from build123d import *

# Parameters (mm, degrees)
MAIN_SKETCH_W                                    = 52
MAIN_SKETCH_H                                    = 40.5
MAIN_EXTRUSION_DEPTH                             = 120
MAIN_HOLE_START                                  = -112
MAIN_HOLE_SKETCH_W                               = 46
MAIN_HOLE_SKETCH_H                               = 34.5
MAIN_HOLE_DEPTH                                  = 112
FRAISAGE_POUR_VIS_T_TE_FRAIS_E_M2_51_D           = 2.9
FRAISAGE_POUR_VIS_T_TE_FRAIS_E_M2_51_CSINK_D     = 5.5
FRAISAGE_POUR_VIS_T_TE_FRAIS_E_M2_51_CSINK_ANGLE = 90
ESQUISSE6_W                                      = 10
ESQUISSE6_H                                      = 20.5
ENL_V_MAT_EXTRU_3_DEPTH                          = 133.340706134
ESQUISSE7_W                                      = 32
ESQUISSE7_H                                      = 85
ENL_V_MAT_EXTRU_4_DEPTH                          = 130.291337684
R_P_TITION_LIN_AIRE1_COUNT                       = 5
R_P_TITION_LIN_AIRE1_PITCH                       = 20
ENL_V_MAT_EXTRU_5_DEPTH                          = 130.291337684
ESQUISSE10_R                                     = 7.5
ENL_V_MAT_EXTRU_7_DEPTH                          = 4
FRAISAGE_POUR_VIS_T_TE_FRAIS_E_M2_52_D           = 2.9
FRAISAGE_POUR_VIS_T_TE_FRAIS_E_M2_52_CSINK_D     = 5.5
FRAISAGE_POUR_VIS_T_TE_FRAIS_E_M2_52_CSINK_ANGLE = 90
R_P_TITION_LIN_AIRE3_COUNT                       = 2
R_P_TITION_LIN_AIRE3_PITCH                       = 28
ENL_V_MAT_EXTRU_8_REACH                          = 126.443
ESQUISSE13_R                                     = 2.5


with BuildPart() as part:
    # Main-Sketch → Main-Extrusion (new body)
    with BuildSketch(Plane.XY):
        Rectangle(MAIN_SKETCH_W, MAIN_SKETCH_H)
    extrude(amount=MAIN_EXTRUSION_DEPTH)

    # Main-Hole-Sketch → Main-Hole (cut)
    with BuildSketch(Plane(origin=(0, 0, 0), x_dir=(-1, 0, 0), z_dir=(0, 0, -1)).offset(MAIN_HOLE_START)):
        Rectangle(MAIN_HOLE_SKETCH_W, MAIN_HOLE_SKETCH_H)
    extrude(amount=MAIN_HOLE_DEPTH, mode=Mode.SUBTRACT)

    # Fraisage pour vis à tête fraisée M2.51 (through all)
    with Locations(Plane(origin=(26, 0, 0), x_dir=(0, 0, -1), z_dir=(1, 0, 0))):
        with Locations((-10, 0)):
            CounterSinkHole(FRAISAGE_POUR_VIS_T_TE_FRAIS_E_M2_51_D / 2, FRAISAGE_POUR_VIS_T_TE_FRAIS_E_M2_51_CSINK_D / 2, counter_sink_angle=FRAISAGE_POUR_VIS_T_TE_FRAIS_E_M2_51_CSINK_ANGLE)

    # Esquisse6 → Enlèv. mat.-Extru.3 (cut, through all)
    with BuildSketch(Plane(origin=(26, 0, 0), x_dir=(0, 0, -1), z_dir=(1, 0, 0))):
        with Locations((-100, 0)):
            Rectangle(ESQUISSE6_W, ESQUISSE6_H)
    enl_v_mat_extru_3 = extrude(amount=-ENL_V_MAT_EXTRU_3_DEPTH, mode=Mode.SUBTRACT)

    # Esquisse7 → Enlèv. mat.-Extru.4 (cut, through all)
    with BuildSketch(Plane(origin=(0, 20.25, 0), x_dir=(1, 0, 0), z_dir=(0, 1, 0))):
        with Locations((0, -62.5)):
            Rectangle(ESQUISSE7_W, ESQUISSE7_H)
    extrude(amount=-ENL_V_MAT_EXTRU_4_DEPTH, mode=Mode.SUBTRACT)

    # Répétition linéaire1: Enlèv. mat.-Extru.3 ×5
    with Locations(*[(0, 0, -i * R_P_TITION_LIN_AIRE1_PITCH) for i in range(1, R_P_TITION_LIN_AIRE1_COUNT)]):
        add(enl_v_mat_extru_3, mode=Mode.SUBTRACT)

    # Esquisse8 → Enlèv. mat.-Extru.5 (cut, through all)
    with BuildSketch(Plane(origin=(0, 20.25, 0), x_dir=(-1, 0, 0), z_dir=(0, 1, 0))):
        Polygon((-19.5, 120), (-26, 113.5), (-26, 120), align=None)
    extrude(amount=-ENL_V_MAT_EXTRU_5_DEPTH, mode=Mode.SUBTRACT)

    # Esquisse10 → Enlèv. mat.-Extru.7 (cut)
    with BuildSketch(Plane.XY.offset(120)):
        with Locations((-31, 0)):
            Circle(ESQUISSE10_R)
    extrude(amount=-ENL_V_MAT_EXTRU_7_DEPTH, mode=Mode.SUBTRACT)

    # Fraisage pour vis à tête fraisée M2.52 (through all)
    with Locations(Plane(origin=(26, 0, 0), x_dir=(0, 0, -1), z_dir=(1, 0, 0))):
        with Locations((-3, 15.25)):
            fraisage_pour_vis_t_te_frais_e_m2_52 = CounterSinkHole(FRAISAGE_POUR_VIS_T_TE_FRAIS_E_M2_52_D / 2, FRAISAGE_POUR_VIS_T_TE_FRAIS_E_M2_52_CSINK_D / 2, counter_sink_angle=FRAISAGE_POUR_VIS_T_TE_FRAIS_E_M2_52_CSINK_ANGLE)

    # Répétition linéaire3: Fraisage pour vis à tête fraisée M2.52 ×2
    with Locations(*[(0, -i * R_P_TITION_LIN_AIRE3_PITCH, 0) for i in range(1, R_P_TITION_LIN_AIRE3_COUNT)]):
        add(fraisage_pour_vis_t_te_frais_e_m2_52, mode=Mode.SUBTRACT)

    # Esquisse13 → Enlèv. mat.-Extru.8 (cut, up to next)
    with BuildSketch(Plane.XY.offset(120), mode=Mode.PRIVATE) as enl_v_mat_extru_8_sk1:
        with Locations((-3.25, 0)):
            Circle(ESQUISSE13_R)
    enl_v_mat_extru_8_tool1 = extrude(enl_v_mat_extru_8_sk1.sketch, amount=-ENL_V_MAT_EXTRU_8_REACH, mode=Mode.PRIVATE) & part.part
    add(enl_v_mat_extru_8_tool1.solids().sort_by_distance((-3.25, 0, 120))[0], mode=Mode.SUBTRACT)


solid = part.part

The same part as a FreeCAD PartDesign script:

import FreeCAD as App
import Part
import Sketcher

doc = App.newDocument("Part")
body = doc.addObject("PartDesign::Body", "Body")

# Sketch on XY plane
sketch1 = body.newObject("Sketcher::SketchObject", "Sketch")
sketch1.AttachmentSupport = (doc.getObject("XY_Plane"), [""])
sketch1.MapMode = "FlatFace"
sketch1.addGeometry([
    Part.LineSegment(App.Vector(-26, 20, 0), App.Vector(-26, -20, 0)),
    Part.LineSegment(App.Vector(-26, -20, 0), App.Vector(26, -20, 0)),
    Part.LineSegment(App.Vector(26, -20, 0), App.Vector(26, 20, 0)),
    Part.LineSegment(App.Vector(26, 20, 0), App.Vector(-26, 20, 0)),
], False)
sketch1.addConstraint([
    Sketcher.Constraint("Coincident", 0, 2, 1, 1),
    Sketcher.Constraint("Coincident", 1, 2, 2, 1),
    Sketcher.Constraint("Coincident", 2, 2, 3, 1),
    Sketcher.Constraint("Coincident", 3, 2, 0, 1),
    Sketcher.Constraint("Vertical", 0),
    Sketcher.Constraint("Horizontal", 1),
    Sketcher.Constraint("Vertical", 2),
    Sketcher.Constraint("Horizontal", 3),
    Sketcher.Constraint("Symmetric", 0, 2, 2, 2, -1, 1),
    Sketcher.Constraint("DistanceX", 1, 1, 1, 2, 52.0),
    Sketcher.Constraint("DistanceY", 0, 2, 0, 1, 40.5),
])
pad1 = body.newObject("PartDesign::Pad", "Pad")
pad1.Profile = sketch1
pad1.Length = 120

# Sketch on XY plane
sketch2 = body.newObject("Sketcher::SketchObject", "Sketch001")
sketch2.AttachmentSupport = (doc.getObject("XY_Plane"), [""])
sketch2.MapMode = "FlatFace"
sketch2.AttachmentOffset = App.Placement(App.Vector(0, 0, 112), App.Rotation())
sketch2.addGeometry([
    Part.LineSegment(App.Vector(23, 17, 0), App.Vector(23, -17, 0)),
    Part.LineSegment(App.Vector(23, -17, 0), App.Vector(-23, -17, 0)),
    Part.LineSegment(App.Vector(-23, -17, 0), App.Vector(-23, 17, 0)),
    Part.LineSegment(App.Vector(-23, 17, 0), App.Vector(23, 17, 0)),
], False)
sketch2.addConstraint([
    Sketcher.Constraint("Coincident", 0, 2, 1, 1),
    Sketcher.Constraint("Coincident", 1, 2, 2, 1),
    Sketcher.Constraint("Coincident", 2, 2, 3, 1),
    Sketcher.Constraint("Coincident", 3, 2, 0, 1),
    Sketcher.Constraint("Vertical", 0),
    Sketcher.Constraint("Horizontal", 1),
    Sketcher.Constraint("Vertical", 2),
    Sketcher.Constraint("Horizontal", 3),
    Sketcher.Constraint("Symmetric", 0, 2, 2, 2, -1, 1),
    Sketcher.Constraint("DistanceX", 1, 2, 1, 1, 46.0),
    Sketcher.Constraint("DistanceY", 0, 2, 0, 1, 34.5),
])
pocket1 = body.newObject("PartDesign::Pocket", "Pocket")
pocket1.Profile = sketch2
pocket1.Length = 112

# Sketch on YZ plane
sketch3 = body.newObject("Sketcher::SketchObject", "Sketch002")
sketch3.AttachmentSupport = (doc.getObject("YZ_Plane"), [""])
sketch3.MapMode = "FlatFace"
sketch3.AttachmentOffset = App.Placement(App.Vector(0, 0, 26), App.Rotation())
sketch3.addGeometry(Part.Circle(App.Vector(0, 10, 0), App.Vector(0, 0, 1), 1.4), False)
sketch3.addConstraint([
    Sketcher.Constraint("PointOnObject", 0, 3, -2),
    Sketcher.Constraint("Diameter", 0, 2.9),
    Sketcher.Constraint("DistanceY", -1, 1, 0, 3, 10.0),
])
doc.recompute()
hole = body.newObject("PartDesign::Hole", "Hole")
hole.Profile = sketch3
hole.ThreadType = "None"
hole.Diameter = 2.9
hole.DepthType = "ThroughAll"
hole.HoleCutType = "Countersink"
hole.HoleCutDiameter = 5.5
hole.HoleCutCountersinkAngle = 90

# Sketch on YZ plane
sketch4 = body.newObject("Sketcher::SketchObject", "Sketch003")
sketch4.AttachmentSupport = (doc.getObject("YZ_Plane"), [""])
sketch4.MapMode = "FlatFace"
sketch4.AttachmentOffset = App.Placement(App.Vector(0, 0, 26), App.Rotation())
sketch4.addGeometry([
    Part.LineSegment(App.Vector(10, 105, 0), App.Vector(-10, 105, 0)),
    Part.LineSegment(App.Vector(-10, 105, 0), App.Vector(-10, 95, 0)),
    Part.LineSegment(App.Vector(-10, 95, 0), App.Vector(10, 95, 0)),
    Part.LineSegment(App.Vector(10, 95, 0), App.Vector(10, 105, 0)),
], False)
sketch4.addConstraint([
    Sketcher.Constraint("Coincident", 0, 2, 1, 1),
    Sketcher.Constraint("Coincident", 1, 2, 2, 1),
    Sketcher.Constraint("Coincident", 2, 2, 3, 1),
    Sketcher.Constraint("Coincident", 3, 2, 0, 1),
    Sketcher.Constraint("Horizontal", 0),
    Sketcher.Constraint("Vertical", 1),
    Sketcher.Constraint("Horizontal", 2),
    Sketcher.Constraint("Vertical", 3),
    Sketcher.Constraint("DistanceY", 1, 2, 1, 1, 10.0),
    Sketcher.Constraint("DistanceX", 0, 2, 0, 1, 20.5),
    Sketcher.Constraint("DistanceY", -1, 1, 0, 2, 105.0),
    Sketcher.Constraint("DistanceX", 0, 2, -1, 1, 10.25),
])
pocket2 = body.newObject("PartDesign::Pocket", "Pocket001")
pocket2.Profile = sketch4
pocket2.Type = "ThroughAll"

# Sketch on XZ plane
sketch5 = body.newObject("Sketcher::SketchObject", "Sketch004")
sketch5.AttachmentSupport = (doc.getObject("XZ_Plane"), [""])
sketch5.MapMode = "FlatFace"
sketch5.AttachmentOffset = App.Placement(App.Vector(0, 0, -20.25), App.Rotation())
sketch5.addGeometry([
    Part.LineSegment(App.Vector(-16, 20, 0), App.Vector(-16, 105, 0)),
    Part.LineSegment(App.Vector(-16, 105, 0), App.Vector(16, 105, 0)),
    Part.LineSegment(App.Vector(16, 105, 0), App.Vector(16, 20, 0)),
    Part.LineSegment(App.Vector(16, 20, 0), App.Vector(-16, 20, 0)),
], False)
sketch5.addConstraint([
    Sketcher.Constraint("Coincident", 0, 2, 1, 1),
    Sketcher.Constraint("Coincident", 1, 2, 2, 1),
    Sketcher.Constraint("Coincident", 2, 2, 3, 1),
    Sketcher.Constraint("Coincident", 3, 2, 0, 1),
    Sketcher.Constraint("Vertical", 0),
    Sketcher.Constraint("Horizontal", 1),
    Sketcher.Constraint("Vertical", 2),
    Sketcher.Constraint("Horizontal", 3),
    Sketcher.Constraint("DistanceX", 1, 1, 1, 2, 32.0),
    Sketcher.Constraint("DistanceY", 0, 1, 0, 2, 85.0),
    Sketcher.Constraint("DistanceX", 0, 2, -1, 1, 16.0),
    Sketcher.Constraint("DistanceY", -1, 1, 0, 2, 105.0),
])
pocket3 = body.newObject("PartDesign::Pocket", "Pocket002")
pocket3.Profile = sketch5
pocket3.Type = "ThroughAll"
pocket3.Reversed = True
doc.recompute()

linearpattern = body.newObject("PartDesign::LinearPattern", "LinearPattern")
linearpattern.Originals = [pocket2]
linearpattern.Direction = (doc.getObject("Z_Axis"), [""])
linearpattern.Mode = "offset"
linearpattern.Offset = 20
linearpattern.Occurrences = 5
linearpattern.Reversed = True
body.Tip = linearpattern

# Sketch on XZ plane
sketch6 = body.newObject("Sketcher::SketchObject", "Sketch005")
sketch6.AttachmentSupport = (doc.getObject("XZ_Plane"), [""])
sketch6.MapMode = "FlatFace"
sketch6.AttachmentOffset = App.Placement(App.Vector(0, 0, -20.25), App.Rotation())
sketch6.addGeometry([
    Part.LineSegment(App.Vector(26, 114, 0), App.Vector(20, 120, 0)),
    Part.LineSegment(App.Vector(20, 120, 0), App.Vector(26, 120, 0)),
    Part.LineSegment(App.Vector(26, 120, 0), App.Vector(26, 114, 0)),
], False)
sketch6.addConstraint([
    Sketcher.Constraint("Coincident", 0, 2, 1, 1),
    Sketcher.Constraint("Coincident", 1, 2, 2, 1),
    Sketcher.Constraint("Coincident", 2, 2, 0, 1),
    Sketcher.Constraint("Horizontal", 1),
    Sketcher.Constraint("Vertical", 2),
    Sketcher.Constraint("Equal", 1, 2),
    Sketcher.Constraint("DistanceX", 1, 1, 1, 2, 6.5),
    Sketcher.Constraint("DistanceY", -1, 1, 0, 2, 120.0),
    Sketcher.Constraint("DistanceX", -1, 1, 1, 2, 26.0),
])
pocket4 = body.newObject("PartDesign::Pocket", "Pocket003")
pocket4.Profile = sketch6
pocket4.Type = "ThroughAll"
pocket4.Reversed = True

# Sketch on XY plane
sketch7 = body.newObject("Sketcher::SketchObject", "Sketch006")
sketch7.AttachmentSupport = (doc.getObject("XY_Plane"), [""])
sketch7.MapMode = "FlatFace"
sketch7.AttachmentOffset = App.Placement(App.Vector(0, 0, 120), App.Rotation())
sketch7.addGeometry(Part.Circle(App.Vector(-31, 0, 0), App.Vector(0, 0, 1), 8), False)
sketch7.addConstraint([
    Sketcher.Constraint("PointOnObject", 0, 3, -1),
    Sketcher.Constraint("Diameter", 0, 15.0),
    Sketcher.Constraint("DistanceX", 0, 3, -1, 1, 31.0),
])
pocket5 = body.newObject("PartDesign::Pocket", "Pocket004")
pocket5.Profile = sketch7
pocket5.Length = 4

# Sketch on YZ plane
sketch8 = body.newObject("Sketcher::SketchObject", "Sketch007")
sketch8.AttachmentSupport = (doc.getObject("YZ_Plane"), [""])
sketch8.MapMode = "FlatFace"
sketch8.AttachmentOffset = App.Placement(App.Vector(0, 0, 26), App.Rotation())
sketch8.addGeometry(Part.Circle(App.Vector(15.2, 3, 0), App.Vector(0, 0, 1), 1.4), False)
sketch8.addConstraint([
    Sketcher.Constraint("Diameter", 0, 2.9),
    Sketcher.Constraint("DistanceY", -1, 1, 0, 3, 3.0),
    Sketcher.Constraint("DistanceX", -1, 1, 0, 3, 15.25),
])
doc.recompute()
hole2 = body.newObject("PartDesign::Hole", "Hole001")
hole2.Profile = sketch8
hole2.ThreadType = "None"
hole2.Diameter = 2.9
hole2.DepthType = "ThroughAll"
hole2.HoleCutType = "Countersink"
hole2.HoleCutDiameter = 5.5
hole2.HoleCutCountersinkAngle = 90
doc.recompute()

linearpattern2 = body.newObject("PartDesign::LinearPattern", "LinearPattern001")
linearpattern2.Originals = [hole2]
linearpattern2.Direction = (doc.getObject("Y_Axis"), [""])
linearpattern2.Mode = "offset"
linearpattern2.Offset = 28
linearpattern2.Occurrences = 2
linearpattern2.Reversed = True
body.Tip = linearpattern2

# Sketch on XY plane
sketch9 = body.newObject("Sketcher::SketchObject", "Sketch008")
sketch9.AttachmentSupport = (doc.getObject("XY_Plane"), [""])
sketch9.MapMode = "FlatFace"
sketch9.AttachmentOffset = App.Placement(App.Vector(0, 0, 120), App.Rotation())
sketch9.addGeometry(Part.Circle(App.Vector(-3.2, 0, 0), App.Vector(0, 0, 1), 2.5), False)
sketch9.addConstraint([
    Sketcher.Constraint("PointOnObject", 0, 3, -1),
    Sketcher.Constraint("Diameter", 0, 5.0),
    Sketcher.Constraint("DistanceX", 0, 3, -1, 1, 3.25),
])
pocket6 = body.newObject("PartDesign::Pocket", "Pocket005")
pocket6.Profile = sketch9
pocket6.Type = "UpToFirst"

doc.recompute()
